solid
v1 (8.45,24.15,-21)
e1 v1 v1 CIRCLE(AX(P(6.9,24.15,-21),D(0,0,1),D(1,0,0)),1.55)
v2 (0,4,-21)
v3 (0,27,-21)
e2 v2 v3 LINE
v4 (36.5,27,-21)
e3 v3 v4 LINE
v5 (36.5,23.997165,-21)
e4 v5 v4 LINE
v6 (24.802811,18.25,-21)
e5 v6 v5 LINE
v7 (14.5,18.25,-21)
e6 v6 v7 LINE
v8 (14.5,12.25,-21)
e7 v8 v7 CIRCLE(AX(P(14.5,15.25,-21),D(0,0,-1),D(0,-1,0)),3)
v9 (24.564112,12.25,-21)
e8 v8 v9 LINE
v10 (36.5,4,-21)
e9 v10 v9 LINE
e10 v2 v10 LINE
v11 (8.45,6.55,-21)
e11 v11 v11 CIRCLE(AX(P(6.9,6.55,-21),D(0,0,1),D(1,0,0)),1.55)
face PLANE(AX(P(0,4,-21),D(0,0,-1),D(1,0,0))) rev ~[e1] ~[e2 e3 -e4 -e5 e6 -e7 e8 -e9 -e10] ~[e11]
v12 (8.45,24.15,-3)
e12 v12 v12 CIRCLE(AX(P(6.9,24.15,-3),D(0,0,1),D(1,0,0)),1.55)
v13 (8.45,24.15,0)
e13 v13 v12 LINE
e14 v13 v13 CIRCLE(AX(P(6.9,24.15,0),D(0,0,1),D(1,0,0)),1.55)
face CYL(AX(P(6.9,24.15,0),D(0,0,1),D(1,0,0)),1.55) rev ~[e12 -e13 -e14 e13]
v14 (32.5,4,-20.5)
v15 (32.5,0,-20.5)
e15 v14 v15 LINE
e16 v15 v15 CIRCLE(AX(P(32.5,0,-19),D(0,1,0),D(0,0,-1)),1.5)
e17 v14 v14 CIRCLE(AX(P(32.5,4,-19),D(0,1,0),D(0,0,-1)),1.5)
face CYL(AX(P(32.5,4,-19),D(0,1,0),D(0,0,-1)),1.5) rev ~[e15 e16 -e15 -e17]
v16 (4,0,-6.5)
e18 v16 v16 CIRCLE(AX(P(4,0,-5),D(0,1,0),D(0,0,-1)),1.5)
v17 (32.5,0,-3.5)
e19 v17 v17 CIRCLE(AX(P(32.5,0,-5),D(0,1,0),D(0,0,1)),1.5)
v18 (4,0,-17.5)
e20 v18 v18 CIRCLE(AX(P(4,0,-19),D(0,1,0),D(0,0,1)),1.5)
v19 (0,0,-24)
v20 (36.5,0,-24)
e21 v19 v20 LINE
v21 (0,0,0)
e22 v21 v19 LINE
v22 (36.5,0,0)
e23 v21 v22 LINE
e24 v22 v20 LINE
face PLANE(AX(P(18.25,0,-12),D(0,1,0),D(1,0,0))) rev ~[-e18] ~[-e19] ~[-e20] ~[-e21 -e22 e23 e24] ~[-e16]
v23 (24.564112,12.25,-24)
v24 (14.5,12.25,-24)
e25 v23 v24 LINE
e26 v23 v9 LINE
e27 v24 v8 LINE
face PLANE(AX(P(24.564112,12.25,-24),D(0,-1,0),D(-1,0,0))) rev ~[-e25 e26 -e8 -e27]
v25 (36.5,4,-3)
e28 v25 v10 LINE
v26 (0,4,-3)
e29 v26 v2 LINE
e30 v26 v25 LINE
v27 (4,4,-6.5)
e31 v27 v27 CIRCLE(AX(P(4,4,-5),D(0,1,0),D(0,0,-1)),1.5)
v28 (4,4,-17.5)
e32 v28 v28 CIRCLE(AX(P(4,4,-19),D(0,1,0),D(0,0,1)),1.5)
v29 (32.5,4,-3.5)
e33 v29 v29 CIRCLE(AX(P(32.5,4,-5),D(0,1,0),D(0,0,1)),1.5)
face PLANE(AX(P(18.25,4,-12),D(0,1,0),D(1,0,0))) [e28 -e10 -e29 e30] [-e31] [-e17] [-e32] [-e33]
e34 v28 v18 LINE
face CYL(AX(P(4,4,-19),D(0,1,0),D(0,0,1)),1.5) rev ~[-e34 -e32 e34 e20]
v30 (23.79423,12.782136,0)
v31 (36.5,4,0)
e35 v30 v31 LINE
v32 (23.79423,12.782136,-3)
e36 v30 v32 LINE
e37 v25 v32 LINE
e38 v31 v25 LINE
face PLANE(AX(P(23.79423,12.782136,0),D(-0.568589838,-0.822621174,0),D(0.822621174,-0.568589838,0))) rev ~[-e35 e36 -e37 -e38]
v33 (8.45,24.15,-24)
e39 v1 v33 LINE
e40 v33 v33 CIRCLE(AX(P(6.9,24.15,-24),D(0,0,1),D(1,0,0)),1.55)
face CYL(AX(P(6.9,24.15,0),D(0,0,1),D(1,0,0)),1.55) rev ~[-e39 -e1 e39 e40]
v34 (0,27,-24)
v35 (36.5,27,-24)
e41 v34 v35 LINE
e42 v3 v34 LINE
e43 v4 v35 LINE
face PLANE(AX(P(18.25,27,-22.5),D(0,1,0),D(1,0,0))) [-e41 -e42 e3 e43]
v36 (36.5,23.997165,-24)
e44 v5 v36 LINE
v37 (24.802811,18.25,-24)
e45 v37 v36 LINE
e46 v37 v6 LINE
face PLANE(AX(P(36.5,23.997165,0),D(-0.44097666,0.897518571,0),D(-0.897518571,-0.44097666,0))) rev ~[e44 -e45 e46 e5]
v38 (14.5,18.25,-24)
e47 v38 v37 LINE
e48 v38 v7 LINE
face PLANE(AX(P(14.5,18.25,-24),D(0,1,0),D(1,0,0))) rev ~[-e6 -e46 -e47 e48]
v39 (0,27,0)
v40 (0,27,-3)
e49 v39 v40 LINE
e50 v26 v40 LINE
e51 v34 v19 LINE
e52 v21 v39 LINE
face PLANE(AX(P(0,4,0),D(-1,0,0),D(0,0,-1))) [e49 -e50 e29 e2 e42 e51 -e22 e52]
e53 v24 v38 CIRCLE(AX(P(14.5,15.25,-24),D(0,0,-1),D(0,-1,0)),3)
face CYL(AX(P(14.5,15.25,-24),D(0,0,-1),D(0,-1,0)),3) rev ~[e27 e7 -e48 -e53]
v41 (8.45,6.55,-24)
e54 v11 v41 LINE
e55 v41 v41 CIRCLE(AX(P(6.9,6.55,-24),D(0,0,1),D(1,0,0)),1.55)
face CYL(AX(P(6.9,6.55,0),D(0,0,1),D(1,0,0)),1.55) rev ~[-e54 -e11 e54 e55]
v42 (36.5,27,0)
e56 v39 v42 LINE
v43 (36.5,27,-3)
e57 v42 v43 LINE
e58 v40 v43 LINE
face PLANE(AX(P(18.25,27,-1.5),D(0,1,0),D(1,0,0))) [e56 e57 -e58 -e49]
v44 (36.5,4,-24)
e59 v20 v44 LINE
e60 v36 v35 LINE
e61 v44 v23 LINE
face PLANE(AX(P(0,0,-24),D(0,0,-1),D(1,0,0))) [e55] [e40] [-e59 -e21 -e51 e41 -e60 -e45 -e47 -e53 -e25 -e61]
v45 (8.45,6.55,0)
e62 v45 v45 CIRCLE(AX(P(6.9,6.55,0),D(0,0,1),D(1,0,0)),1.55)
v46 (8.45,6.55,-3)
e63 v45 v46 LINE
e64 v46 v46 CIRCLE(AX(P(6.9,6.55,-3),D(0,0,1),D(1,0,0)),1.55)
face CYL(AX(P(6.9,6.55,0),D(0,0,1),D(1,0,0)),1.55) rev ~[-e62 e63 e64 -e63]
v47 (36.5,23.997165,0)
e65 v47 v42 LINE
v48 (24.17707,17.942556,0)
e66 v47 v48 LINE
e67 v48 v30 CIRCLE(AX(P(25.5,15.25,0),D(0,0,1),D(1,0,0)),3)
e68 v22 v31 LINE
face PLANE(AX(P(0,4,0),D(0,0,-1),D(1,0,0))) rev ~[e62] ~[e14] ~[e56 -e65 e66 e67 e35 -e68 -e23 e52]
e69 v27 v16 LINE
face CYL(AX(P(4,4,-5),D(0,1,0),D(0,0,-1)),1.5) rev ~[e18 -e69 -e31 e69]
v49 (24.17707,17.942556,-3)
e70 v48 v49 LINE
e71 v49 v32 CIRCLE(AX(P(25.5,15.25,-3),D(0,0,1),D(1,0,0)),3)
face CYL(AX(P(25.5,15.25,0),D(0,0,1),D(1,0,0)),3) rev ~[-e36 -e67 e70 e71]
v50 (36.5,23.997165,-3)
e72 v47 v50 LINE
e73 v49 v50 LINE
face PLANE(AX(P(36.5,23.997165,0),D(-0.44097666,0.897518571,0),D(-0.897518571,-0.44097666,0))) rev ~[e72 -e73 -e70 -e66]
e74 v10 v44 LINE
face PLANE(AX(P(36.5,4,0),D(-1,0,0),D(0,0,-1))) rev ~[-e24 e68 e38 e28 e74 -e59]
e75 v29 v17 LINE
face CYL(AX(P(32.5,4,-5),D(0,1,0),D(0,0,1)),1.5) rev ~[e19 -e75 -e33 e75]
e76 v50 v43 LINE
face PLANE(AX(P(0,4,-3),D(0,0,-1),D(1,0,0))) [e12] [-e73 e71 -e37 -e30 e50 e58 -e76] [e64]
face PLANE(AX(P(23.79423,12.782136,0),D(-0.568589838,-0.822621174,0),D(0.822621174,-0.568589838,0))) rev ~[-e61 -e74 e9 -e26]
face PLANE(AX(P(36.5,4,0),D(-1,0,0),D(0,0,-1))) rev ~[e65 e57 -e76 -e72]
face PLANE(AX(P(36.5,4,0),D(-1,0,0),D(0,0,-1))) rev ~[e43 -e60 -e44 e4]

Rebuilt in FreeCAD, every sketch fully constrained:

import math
import FreeCAD as App
import Part
import Sketcher


def add_polygon(sketch, points):
    """Adds a closed chain of lines whose ends are joined by coincident constraints."""
    first, n = sketch.GeometryCount, len(points)
    for a, b in zip(points, points[1:] + points[:1]):
        sketch.addGeometry(Part.LineSegment(App.Vector(*a, 0), App.Vector(*b, 0)), False)
    for i in range(n):
        sketch.addConstraint(Sketcher.Constraint("Coincident", first + i, 2, first + (i + 1) % n, 1))

doc = App.newDocument("Part")
body = doc.addObject("PartDesign::Body", "Body")

# Sketch on XZ plane
sketch1 = body.newObject("Sketcher::SketchObject", "Sketch")
sketch1.AttachmentSupport = (doc.getObject("XZ_Plane"), [""])
sketch1.MapMode = "FlatFace"
add_polygon(sketch1, [(0, -24), (0, 0), (36, 0), (36, -24)])  # lines 0-3
sketch1.addConstraint([
    Sketcher.Constraint("Vertical", 0),
    Sketcher.Constraint("Horizontal", 1),
    Sketcher.Constraint("Vertical", 2),
    Sketcher.Constraint("Horizontal", 3),
    Sketcher.Constraint("Coincident", 0, 2, -1, 1),
    Sketcher.Constraint("DistanceY", 0, 1, 0, 2, 24.0),
    Sketcher.Constraint("DistanceX", 1, 1, 1, 2, 36.5),
])
pad1 = body.newObject("PartDesign::Pad", "Pad")
pad1.Profile = sketch1
pad1.Length = 4
pad1.Reversed = True

# Sketch on XZ plane
sketch2 = body.newObject("Sketcher::SketchObject", "Sketch001")
sketch2.AttachmentSupport = (doc.getObject("XZ_Plane"), [""])
sketch2.MapMode = "FlatFace"
sketch2.AttachmentOffset = App.Placement(App.Vector(0, 0, -4), App.Rotation())
add_polygon(sketch2, [(0, -3), (0, 0), (36.5, 0), (36.5, -3)])  # lines 0-3
add_polygon(sketch2, [(0, -24), (0, -21), (36.5, -21), (36.5, -24)])  # lines 4-7
sketch2.addConstraint([
    Sketcher.Constraint("Vertical", 0),
    Sketcher.Constraint("Horizontal", 1),
    Sketcher.Constraint("Vertical", 2),
    Sketcher.Constraint("Horizontal", 3),
    Sketcher.Constraint("Vertical", 4),
    Sketcher.Constraint("Horizontal", 5),
    Sketcher.Constraint("Vertical", 6),
    Sketcher.Constraint("Horizontal", 7),
    Sketcher.Constraint("Coincident", 0, 2, -1, 1),
    Sketcher.Constraint("PointOnObject", 4, 2, -2),
    Sketcher.Constraint("Vertical", 2, 2, 5, 2),
    Sketcher.Constraint("Equal", 2, 4),
    Sketcher.Constraint("DistanceY", 0, 1, 0, 2, 3.0),
    Sketcher.Constraint("DistanceX", 1, 1, 1, 2, 36.5),
    Sketcher.Constraint("DistanceY", 4, 2, -1, 1, 21.0),
])
pad2 = body.newObject("PartDesign::Pad", "Pad001")
pad2.Profile = sketch2
pad2.Length = 23
pad2.Reversed = True

# Sketch on XY plane
sketch3 = body.newObject("Sketcher::SketchObject", "Sketch002")
sketch3.AttachmentSupport = (doc.getObject("XY_Plane"), [""])
sketch3.MapMode = "FlatFace"
sketch3.addGeometry([
    Part.ArcOfCircle(Part.Circle(App.Vector(25.5, 15.2, 0), App.Vector(0, 0, 1), 3), math.radians(116), math.radians(235)),  # 0
    Part.LineSegment(App.Vector(23.8, 12.8, 0), App.Vector(36.5, 4, 0)),  # 1
    Part.LineSegment(App.Vector(36.5, 4, 0), App.Vector(36.5, 24, 0)),  # 2
    Part.LineSegment(App.Vector(36.5, 24, 0), App.Vector(24.2, 17.9, 0)),  # 3
    Part.Circle(App.Vector(6.9, 24.1, 0), App.Vector(0, 0, 1), 1.6),  # 4
    Part.Circle(App.Vector(6.9, 6.5, 0), App.Vector(0, 0, 1), 1.6),  # 5
], False)
sketch3.addConstraint([
    Sketcher.Constraint("Tangent", 0, 2, 1, 1),
    Sketcher.Constraint("Coincident", 1, 2, 2, 1),
    Sketcher.Constraint("Coincident", 2, 2, 3, 1),
    Sketcher.Constraint("Tangent", 3, 2, 0, 1),
    Sketcher.Constraint("Vertical", 2),
    Sketcher.Constraint("Equal", 4, 5),
    Sketcher.Constraint("Vertical", 4, 3, 5, 3),
    Sketcher.Constraint("Radius", 0, 3.0),
    Sketcher.Constraint("Diameter", 4, 3.1),
    Sketcher.Constraint("DistanceY", -1, 1, 1, 2, 4.0),
    Sketcher.Constraint("DistanceX", 0, 3, 1, 2, 11.0),
    Sketcher.Constraint("DistanceX", -1, 1, 0, 3, 25.5),
    Sketcher.Constraint("DistanceX", -1, 1, 4, 3, 6.9),
    Sketcher.Constraint("DistanceY", 0, 3, 4, 3, 8.9),
    Sketcher.Constraint("DistanceY", 5, 3, 4, 3, 17.6),
    Sketcher.Constraint("Distance", 3, 13.73),
    Sketcher.Constraint("DistanceY", -1, 1, 0, 3, 15.25),
])
pocket1 = body.newObject("PartDesign::Pocket", "Pocket")
pocket1.Profile = sketch3
pocket1.Type = "ThroughAll"

# Sketch on XZ plane
sketch4 = body.newObject("Sketcher::SketchObject", "Sketch003")
sketch4.AttachmentSupport = (doc.getObject("XZ_Plane"), [""])
sketch4.MapMode = "FlatFace"
sketch4.AttachmentOffset = App.Placement(App.Vector(0, 0, -4), App.Rotation())
sketch4.addGeometry([
    Part.Circle(App.Vector(4, -19, 0), App.Vector(0, 0, 1), 1.5),
    Part.Circle(App.Vector(32.5, -19, 0), App.Vector(0, 0, 1), 1.5),
    Part.Circle(App.Vector(32.5, -5, 0), App.Vector(0, 0, 1), 1.5),
    Part.Circle(App.Vector(4, -5, 0), App.Vector(0, 0, 1), 1.5),
], False)
sketch4.addConstraint([
    Sketcher.Constraint("Equal", 0, 1),
    Sketcher.Constraint("Equal", 1, 2),
    Sketcher.Constraint("Equal", 2, 3),
    Sketcher.Constraint("Horizontal", 0, 3, 1, 3),
    Sketcher.Constraint("Horizontal", 2, 3, 3, 3),
    Sketcher.Constraint("Vertical", 1, 3, 2, 3),
    Sketcher.Constraint("Vertical", 0, 3, 3, 3),
    Sketcher.Constraint("Diameter", 0, 3.0),
    Sketcher.Constraint("DistanceX", -1, 1, 0, 3, 4.0),
    Sketcher.Constraint("DistanceY", 0, 3, -1, 1, 19.0),
    Sketcher.Constraint("DistanceY", 2, 3, -1, 1, 5.0),
    Sketcher.Constraint("DistanceX", -1, 1, 1, 3, 32.5),
])
pocket2 = body.newObject("PartDesign::Pocket", "Pocket001")
pocket2.Profile = sketch4
pocket2.Type = "ThroughAll"
pocket2.Reversed = True

# Sketch on XY plane
sketch5 = body.newObject("Sketcher::SketchObject", "Sketch004")
sketch5.AttachmentSupport = (doc.getObject("XY_Plane"), [""])
sketch5.MapMode = "FlatFace"
sketch5.AttachmentOffset = App.Placement(App.Vector(0, 0, -24), App.Rotation())
sketch5.addGeometry([
    Part.LineSegment(App.Vector(24.6, 12.2, 0), App.Vector(14.5, 12.2, 0)),  # 0
    Part.ArcOfCircle(Part.Circle(App.Vector(14.5, 15.2, 0), App.Vector(0, 0, 1), 3), math.radians(90), math.radians(270)),  # 1
    Part.LineSegment(App.Vector(14.5, 18.2, 0), App.Vector(24.8, 18.2, 0)),  # 2
    Part.LineSegment(App.Vector(24.8, 18.2, 0), App.Vector(24.2, 17.9, 0)),  # 3
    Part.ArcOfCircle(Part.Circle(App.Vector(25.5, 15.2, 0), App.Vector(0, 0, 1), 3), math.radians(116), math.radians(235)),  # 4
    Part.LineSegment(App.Vector(23.8, 12.8, 0), App.Vector(24.6, 12.2, 0)),  # 5
], False)
sketch5.addConstraint([
    Sketcher.Constraint("Tangent", 0, 2, 1, 2),
    Sketcher.Constraint("Tangent", 1, 1, 2, 1),
    Sketcher.Constraint("Coincident", 2, 2, 3, 1),
    Sketcher.Constraint("Tangent", 3, 2, 4, 1),
    Sketcher.Constraint("Tangent", 4, 2, 5, 1),
    Sketcher.Constraint("Coincident", 5, 2, 0, 1),
    Sketcher.Constraint("Horizontal", 0),
    Sketcher.Constraint("Horizontal", 2),
    Sketcher.Constraint("Equal", 1, 4),
    Sketcher.Constraint("Horizontal", 1, 3, 4, 3),
    Sketcher.Constraint("Radius", 1, 3.0),
    Sketcher.Constraint("DistanceX", 1, 3, 4, 3, 11.0),
    Sketcher.Constraint("DistanceX", -1, 1, 1, 3, 14.5),
    Sketcher.Constraint("DistanceY", -1, 1, 1, 3, 15.25),
    Sketcher.Constraint("DistanceX", 0, 2, 0, 1, 10.064112),
    Sketcher.Constraint("DistanceX", 2, 1, 2, 2, 10.302811),
])
pocket3 = body.newObject("PartDesign::Pocket", "Pocket002")
pocket3.Profile = sketch5
pocket3.Type = "UpToFirst"
pocket3.Reversed = True

doc.recompute()
